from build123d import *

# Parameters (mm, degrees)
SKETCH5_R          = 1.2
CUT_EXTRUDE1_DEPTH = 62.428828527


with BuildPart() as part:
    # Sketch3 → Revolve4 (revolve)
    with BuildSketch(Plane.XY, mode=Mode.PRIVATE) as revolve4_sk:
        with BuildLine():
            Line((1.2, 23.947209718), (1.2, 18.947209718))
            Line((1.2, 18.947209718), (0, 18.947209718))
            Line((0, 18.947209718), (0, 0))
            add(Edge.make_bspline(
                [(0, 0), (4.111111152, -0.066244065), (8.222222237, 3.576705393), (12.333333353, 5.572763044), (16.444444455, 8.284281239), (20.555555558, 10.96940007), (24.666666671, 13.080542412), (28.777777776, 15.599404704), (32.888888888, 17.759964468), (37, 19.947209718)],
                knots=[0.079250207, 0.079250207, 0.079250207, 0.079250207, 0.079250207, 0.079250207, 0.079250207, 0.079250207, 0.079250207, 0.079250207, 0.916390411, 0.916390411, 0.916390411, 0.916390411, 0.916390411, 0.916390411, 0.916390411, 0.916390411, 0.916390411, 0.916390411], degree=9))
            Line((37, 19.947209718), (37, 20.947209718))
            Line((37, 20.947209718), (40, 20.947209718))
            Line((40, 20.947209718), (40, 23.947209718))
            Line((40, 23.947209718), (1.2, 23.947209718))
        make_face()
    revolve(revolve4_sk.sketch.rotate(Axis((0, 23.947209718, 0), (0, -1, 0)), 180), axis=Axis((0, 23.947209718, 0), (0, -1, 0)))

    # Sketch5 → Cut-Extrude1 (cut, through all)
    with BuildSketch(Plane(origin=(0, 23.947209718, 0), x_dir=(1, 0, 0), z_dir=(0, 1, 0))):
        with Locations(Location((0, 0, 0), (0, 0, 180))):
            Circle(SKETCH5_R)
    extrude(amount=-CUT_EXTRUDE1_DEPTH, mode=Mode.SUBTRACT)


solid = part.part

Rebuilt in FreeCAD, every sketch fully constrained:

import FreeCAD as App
import Part
import Sketcher
from FreeCAD import Vector
Q = App.Units.Quantity

doc = App.newDocument("Part")
body = doc.addObject("PartDesign::Body", "Body")

# Sketch on XY plane
sketch1 = body.newObject("Sketcher::SketchObject", "Sketch")
sketch1.AttachmentSupport = (doc.getObject("XY_Plane"), [""])
sketch1.MapMode = "FlatFace"
sketch1.addGeometry([
    Part.LineSegment(Vector(1.2, 23.94721, 0), Vector(1.2, 18.94721, 0)),  # 0
    Part.LineSegment(Vector(1.2, 18.94721, 0), Vector(0, 18.94721, 0)),  # 1
    Part.LineSegment(Vector(0, 18.94721, 0), Vector(0, 0, 0)),  # 2
    Part.BSplineCurve([Vector(0, 0, 0), Vector(4.111111, -0.066244, 0), Vector(8.222222, 3.576705, 0), Vector(12.333333, 5.572763, 0), Vector(16.444444, 8.284281, 0), Vector(20.555556, 10.9694, 0), Vector(24.666667, 13.080542, 0), Vector(28.777778, 15.599405, 0), Vector(32.888889, 17.759964, 0), Vector(37, 19.94721, 0)], [10, 10], [0.079250207, 0.916390411], False, 9, [1, 1, 1, 1, 1, 1, 1, 1, 1, 1], False),  # 3
    Part.LineSegment(Vector(37, 19.94721, 0), Vector(37, 20.94721, 0)),  # 4
    Part.LineSegment(Vector(37, 20.94721, 0), Vector(40, 20.94721, 0)),  # 5
    Part.LineSegment(Vector(40, 20.94721, 0), Vector(40, 23.94721, 0)),  # 6
    Part.LineSegment(Vector(40, 23.94721, 0), Vector(1.2, 23.94721, 0)),  # 7
], False)
sketch1.addConstraint([
    Sketcher.Constraint("Block", 3),
    Sketcher.Constraint("Coincident", 0, 2, 1, 1),
    Sketcher.Constraint("Coincident", 1, 2, 2, 1),
    Sketcher.Constraint("Coincident", 2, 2, 3, 1),
    Sketcher.Constraint("Coincident", 3, 2, 4, 1),
    Sketcher.Constraint("Coincident", 4, 2, 5, 1),
    Sketcher.Constraint("Coincident", 5, 2, 6, 1),
    Sketcher.Constraint("Coincident", 6, 2, 7, 1),
    Sketcher.Constraint("Coincident", 7, 2, 0, 1),
    Sketcher.Constraint("Vertical", 0),
    Sketcher.Constraint("Horizontal", 1),
    Sketcher.Constraint("Vertical", 2),
    Sketcher.Constraint("Vertical", 4),
    Sketcher.Constraint("Horizontal", 5),
    Sketcher.Constraint("Vertical", 6),
    Sketcher.Constraint("Horizontal", 7),
    Sketcher.Constraint("Equal", 5, 6),
    Sketcher.Constraint("DistanceX", 5, 1, 5, 2, Q("3 mm")),
    Sketcher.Constraint("DistanceY", 0, 2, 0, 1, Q("5 mm")),
    Sketcher.Constraint("DistanceY", 4, 1, 4, 2, Q("1 mm")),
    Sketcher.Constraint("DistanceX", 1, 2, 1, 1, Q("1.2 mm")),
])
revolution = body.newObject("PartDesign::Revolution", "Revolution")
revolution.Profile = sketch1
revolution.ReferenceAxis = (sketch1, ["V_Axis"])
revolution.Angle = 360

# Sketch on XZ plane
sketch2 = body.newObject("Sketcher::SketchObject", "Sketch001")
sketch2.AttachmentSupport = (doc.getObject("XZ_Plane"), [""])
sketch2.MapMode = "FlatFace"
sketch2.AttachmentOffset = App.Placement(Vector(0, 0, -23.94721), App.Rotation())
sketch2.addGeometry(Part.Circle(Vector(0, 0, 0), Vector(0, 0, 1), 1.2), False)
sketch2.addConstraint([
    Sketcher.Constraint("Coincident", 0, 3, -1, 1),
    Sketcher.Constraint("Diameter", 0, Q("2.4 mm")),
])
pocket1 = body.newObject("PartDesign::Pocket", "Pocket")
pocket1.Profile = sketch2
pocket1.Type = "ThroughAll"
pocket1.Reversed = True

doc.recompute()
